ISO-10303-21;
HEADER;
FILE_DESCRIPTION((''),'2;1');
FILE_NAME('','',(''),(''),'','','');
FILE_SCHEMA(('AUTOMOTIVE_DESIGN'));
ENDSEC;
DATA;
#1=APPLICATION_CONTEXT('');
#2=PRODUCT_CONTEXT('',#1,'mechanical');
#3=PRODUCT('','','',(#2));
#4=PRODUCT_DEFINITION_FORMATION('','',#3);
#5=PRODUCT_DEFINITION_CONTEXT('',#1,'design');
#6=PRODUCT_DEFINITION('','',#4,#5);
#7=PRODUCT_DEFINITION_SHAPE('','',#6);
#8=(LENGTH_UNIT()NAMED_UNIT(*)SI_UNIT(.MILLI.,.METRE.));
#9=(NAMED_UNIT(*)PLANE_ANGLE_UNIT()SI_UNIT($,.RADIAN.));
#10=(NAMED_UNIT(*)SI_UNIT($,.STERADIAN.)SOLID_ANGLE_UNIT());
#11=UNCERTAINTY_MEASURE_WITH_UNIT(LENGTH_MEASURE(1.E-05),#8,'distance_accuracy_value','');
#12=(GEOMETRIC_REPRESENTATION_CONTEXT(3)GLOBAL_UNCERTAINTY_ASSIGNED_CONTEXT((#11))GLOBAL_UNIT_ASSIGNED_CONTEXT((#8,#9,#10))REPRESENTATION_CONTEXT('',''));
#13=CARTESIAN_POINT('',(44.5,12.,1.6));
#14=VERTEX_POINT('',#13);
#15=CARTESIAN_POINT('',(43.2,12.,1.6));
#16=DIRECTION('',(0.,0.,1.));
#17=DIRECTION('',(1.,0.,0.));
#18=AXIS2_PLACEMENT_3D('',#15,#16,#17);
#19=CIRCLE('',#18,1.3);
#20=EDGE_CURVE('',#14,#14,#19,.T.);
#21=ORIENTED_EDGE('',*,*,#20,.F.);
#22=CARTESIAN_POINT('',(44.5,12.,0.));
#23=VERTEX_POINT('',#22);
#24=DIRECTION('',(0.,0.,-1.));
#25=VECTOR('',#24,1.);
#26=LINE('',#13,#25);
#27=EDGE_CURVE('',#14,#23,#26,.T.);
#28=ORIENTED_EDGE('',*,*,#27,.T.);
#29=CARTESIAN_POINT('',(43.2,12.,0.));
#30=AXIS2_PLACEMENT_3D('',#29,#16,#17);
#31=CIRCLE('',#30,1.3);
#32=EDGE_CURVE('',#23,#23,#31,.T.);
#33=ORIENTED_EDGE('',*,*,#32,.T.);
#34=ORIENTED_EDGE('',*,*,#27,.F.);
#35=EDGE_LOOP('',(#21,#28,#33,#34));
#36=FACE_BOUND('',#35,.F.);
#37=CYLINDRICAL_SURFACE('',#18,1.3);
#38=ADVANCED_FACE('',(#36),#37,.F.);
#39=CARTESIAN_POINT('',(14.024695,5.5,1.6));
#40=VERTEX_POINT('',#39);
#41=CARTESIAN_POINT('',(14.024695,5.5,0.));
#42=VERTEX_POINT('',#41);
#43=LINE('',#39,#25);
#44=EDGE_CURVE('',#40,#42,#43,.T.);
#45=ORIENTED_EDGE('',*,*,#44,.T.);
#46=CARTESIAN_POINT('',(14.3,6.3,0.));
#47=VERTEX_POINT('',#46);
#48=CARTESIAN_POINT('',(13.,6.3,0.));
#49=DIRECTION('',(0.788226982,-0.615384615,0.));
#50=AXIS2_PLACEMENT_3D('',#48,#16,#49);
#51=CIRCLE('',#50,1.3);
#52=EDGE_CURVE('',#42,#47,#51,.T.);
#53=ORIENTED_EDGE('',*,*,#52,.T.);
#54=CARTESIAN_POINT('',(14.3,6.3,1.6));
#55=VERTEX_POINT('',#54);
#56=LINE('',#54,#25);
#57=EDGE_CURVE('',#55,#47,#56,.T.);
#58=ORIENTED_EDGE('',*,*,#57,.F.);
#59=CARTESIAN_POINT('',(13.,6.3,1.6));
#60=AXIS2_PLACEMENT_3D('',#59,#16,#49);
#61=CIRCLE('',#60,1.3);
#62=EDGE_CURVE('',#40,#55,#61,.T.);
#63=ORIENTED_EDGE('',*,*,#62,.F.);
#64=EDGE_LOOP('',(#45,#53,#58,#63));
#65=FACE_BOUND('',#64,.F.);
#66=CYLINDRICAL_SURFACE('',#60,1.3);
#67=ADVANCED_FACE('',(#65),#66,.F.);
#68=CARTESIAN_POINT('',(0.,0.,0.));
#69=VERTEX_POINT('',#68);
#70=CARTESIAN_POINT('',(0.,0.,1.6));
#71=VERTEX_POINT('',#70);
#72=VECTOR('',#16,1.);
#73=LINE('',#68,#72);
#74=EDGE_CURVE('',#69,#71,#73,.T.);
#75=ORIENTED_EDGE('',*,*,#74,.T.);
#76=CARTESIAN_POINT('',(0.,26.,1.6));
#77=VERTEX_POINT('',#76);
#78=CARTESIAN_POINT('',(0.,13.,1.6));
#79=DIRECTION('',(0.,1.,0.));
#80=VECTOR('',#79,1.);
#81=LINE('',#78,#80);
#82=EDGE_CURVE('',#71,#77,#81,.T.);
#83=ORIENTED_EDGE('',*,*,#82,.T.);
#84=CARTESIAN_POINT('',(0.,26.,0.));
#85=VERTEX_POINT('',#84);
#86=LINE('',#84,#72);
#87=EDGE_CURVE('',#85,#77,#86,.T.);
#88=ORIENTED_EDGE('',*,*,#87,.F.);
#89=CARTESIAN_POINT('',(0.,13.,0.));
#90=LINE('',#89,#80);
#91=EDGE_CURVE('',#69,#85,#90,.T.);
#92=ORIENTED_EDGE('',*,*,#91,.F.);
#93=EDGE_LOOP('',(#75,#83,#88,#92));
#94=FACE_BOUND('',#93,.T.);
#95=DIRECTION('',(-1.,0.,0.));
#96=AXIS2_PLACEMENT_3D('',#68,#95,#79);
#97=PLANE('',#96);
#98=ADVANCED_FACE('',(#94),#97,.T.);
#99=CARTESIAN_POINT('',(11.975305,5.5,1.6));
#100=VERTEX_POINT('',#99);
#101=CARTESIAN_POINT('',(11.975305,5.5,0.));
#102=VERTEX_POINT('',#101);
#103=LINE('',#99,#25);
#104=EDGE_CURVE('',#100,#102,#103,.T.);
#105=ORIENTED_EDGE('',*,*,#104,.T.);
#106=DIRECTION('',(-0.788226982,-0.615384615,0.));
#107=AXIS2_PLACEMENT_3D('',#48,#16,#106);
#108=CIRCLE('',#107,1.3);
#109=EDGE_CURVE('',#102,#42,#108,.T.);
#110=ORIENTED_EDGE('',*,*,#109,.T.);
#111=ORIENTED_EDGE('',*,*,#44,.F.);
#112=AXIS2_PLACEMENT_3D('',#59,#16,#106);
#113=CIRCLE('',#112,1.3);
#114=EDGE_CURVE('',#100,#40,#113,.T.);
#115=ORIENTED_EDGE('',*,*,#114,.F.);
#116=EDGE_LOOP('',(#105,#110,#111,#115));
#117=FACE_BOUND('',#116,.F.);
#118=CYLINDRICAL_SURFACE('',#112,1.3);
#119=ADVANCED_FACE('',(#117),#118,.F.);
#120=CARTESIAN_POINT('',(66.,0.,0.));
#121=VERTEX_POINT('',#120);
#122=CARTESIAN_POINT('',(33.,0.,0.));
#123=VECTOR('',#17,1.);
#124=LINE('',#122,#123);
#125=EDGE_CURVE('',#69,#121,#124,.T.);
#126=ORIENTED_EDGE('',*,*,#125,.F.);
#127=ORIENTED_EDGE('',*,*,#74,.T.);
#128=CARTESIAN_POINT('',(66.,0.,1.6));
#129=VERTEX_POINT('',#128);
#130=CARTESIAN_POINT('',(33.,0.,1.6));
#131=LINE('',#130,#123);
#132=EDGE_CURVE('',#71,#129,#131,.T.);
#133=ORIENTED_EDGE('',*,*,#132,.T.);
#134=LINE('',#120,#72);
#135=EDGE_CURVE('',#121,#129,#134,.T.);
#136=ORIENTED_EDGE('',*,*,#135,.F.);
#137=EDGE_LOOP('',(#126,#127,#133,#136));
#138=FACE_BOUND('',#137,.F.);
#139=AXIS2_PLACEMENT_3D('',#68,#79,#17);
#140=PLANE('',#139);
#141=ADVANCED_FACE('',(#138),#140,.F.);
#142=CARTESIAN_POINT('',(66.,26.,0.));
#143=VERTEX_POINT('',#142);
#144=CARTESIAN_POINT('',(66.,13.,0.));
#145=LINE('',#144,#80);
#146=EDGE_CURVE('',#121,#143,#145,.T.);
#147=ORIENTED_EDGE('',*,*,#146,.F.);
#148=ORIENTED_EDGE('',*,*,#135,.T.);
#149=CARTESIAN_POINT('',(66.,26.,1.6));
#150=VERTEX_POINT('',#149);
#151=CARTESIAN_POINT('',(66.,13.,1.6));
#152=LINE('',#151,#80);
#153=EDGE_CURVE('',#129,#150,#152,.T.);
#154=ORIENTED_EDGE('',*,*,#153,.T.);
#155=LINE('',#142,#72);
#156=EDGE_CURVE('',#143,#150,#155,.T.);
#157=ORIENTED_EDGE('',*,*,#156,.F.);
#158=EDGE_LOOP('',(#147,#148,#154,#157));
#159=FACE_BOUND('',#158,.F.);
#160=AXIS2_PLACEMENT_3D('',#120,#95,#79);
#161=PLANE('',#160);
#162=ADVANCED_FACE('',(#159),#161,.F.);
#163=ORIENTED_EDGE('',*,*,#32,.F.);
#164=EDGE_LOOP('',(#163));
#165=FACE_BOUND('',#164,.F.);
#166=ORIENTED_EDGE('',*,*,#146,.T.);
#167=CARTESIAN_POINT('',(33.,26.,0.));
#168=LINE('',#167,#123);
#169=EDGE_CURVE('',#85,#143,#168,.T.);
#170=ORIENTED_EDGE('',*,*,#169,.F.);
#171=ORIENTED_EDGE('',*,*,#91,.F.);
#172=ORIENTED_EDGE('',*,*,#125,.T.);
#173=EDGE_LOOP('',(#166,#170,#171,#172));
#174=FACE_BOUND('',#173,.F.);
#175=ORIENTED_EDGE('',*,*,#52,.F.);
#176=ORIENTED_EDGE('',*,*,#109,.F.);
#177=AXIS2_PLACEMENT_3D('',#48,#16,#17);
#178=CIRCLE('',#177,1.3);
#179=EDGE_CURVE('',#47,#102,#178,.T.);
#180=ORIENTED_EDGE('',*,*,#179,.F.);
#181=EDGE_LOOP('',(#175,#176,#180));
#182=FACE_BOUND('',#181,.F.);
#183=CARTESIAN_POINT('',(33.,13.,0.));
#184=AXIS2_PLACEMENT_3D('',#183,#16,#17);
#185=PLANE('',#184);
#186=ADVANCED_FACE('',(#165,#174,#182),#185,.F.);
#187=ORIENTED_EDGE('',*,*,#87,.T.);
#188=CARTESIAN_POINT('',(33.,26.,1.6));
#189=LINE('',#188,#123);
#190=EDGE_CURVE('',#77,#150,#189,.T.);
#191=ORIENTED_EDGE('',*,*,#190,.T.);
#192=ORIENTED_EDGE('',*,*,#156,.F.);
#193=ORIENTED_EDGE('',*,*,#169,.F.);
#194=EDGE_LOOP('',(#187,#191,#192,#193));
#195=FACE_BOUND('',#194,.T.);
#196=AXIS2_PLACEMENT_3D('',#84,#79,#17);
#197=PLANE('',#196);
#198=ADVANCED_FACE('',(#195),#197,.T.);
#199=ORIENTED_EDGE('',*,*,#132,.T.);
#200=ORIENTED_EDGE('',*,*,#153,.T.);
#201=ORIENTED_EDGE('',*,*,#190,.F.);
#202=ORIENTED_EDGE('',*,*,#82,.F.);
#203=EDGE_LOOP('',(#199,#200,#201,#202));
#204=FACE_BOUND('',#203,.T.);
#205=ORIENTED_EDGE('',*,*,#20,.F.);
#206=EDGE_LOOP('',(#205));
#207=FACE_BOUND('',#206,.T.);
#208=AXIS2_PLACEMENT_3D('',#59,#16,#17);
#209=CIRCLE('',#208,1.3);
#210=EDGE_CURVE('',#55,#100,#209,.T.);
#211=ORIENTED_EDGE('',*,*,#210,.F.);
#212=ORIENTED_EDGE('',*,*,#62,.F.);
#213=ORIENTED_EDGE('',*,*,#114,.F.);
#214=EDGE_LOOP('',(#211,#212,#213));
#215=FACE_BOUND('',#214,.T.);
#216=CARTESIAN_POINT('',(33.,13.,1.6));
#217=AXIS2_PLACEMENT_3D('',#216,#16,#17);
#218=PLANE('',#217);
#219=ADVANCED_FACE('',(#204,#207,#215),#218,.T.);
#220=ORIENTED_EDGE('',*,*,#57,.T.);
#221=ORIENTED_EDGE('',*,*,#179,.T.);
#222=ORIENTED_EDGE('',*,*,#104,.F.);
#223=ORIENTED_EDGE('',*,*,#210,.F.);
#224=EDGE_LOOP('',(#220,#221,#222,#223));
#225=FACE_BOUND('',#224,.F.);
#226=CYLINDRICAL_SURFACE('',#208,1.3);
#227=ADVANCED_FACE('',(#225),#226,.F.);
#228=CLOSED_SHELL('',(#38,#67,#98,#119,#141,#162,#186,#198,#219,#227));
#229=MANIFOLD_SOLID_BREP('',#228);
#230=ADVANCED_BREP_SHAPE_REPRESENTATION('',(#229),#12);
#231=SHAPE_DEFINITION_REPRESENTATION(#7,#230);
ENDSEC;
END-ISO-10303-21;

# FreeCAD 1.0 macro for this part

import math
import FreeCAD as App
import Part
import Sketcher

V = App.Vector
Q = App.Units.Quantity


def add_polygon(sketch, points):
    """Adds a closed chain of lines whose ends are joined by coincident constraints."""
    first, n = sketch.GeometryCount, len(points)
    for a, b in zip(points, points[1:] + points[:1]):
        sketch.addGeometry(Part.LineSegment(App.Vector(*a, 0), App.Vector(*b, 0)), False)
    for i in range(n):
        sketch.addConstraint(Sketcher.Constraint("Coincident", first + i, 2, first + (i + 1) % n, 1))

doc = App.newDocument("Part")
body = doc.addObject("PartDesign::Body", "Body")

sketch1 = doc.addObject("Sketcher::SketchObject", "Sketch")
body.addObject(sketch1)
sketch1.AttachmentSupport = (doc.XY_Plane, [""])
sketch1.MapMode = "FlatFace"
add_polygon(sketch1, [(0, 26), (0, 0), (66, 0), (66, 26)])
sketch1.addConstraint(Sketcher.Constraint("Vertical", 0))
sketch1.addConstraint(Sketcher.Constraint("Horizontal", 1))
sketch1.addConstraint(Sketcher.Constraint("Vertical", 2))
sketch1.addConstraint(Sketcher.Constraint("Horizontal", 3))
sketch1.addConstraint(Sketcher.Constraint("Coincident", 0, 2, -1, 1))
sketch1.addConstraint(Sketcher.Constraint("DistanceX", 1, 1, 1, 2, Q("66 mm")))
sketch1.addConstraint(Sketcher.Constraint("DistanceY", 0, 2, 0, 1, Q("26 mm")))
pad1 = doc.addObject("PartDesign::Pad", "Pad")
body.addObject(pad1)
pad1.Profile = sketch1
pad1.Length = 1.6

sketch2 = doc.addObject("Sketcher::SketchObject", "Sketch001")
body.addObject(sketch2)
sketch2.AttachmentSupport = (doc.XY_Plane, [""])
sketch2.MapMode = "FlatFace"
sketch2.AttachmentOffset = App.Placement(V(0, 0, 1.6), App.Rotation())
sketch2.addGeometry(Part.ArcOfCircle(Part.Circle(V(13, 6.3, 0), V(0, 0, 1), 1.3), math.radians(-142), math.radians(-38)), False)
sketch2.addGeometry(Part.ArcOfCircle(Part.Circle(V(13, 6.3, 0), V(0, 0, 1), 1.3), math.radians(-38), math.radians(0)), False)
sketch2.addGeometry(Part.ArcOfCircle(Part.Circle(V(13, 6.3, 0), V(0, 0, 1), 1.3), math.radians(0), math.radians(218)), False)
sketch2.addGeometry(Part.Circle(V(43.2, 12, 0), V(0, 0, 1), 1.3), False)
sketch2.addConstraint(Sketcher.Constraint("Tangent", 0, 2, 1, 1))
sketch2.addConstraint(Sketcher.Constraint("Tangent", 1, 2, 2, 1))
sketch2.addConstraint(Sketcher.Constraint("Tangent", 2, 2, 0, 1))
sketch2.addConstraint(Sketcher.Constraint("Equal", 2, 3))
sketch2.addConstraint(Sketcher.Constraint("Horizontal", 2, 3, 1, 2))
sketch2.addConstraint(Sketcher.Constraint("Horizontal", 0, 2, 2, 2))
sketch2.addConstraint(Sketcher.Constraint("Diameter", 3, Q("2.6 mm")))
sketch2.addConstraint(Sketcher.Constraint("DistanceX", -1, 1, 0, 3, Q("13 mm")))
sketch2.addConstraint(Sketcher.Constraint("DistanceY", -1, 1, 3, 3, Q("12 mm")))
sketch2.addConstraint(Sketcher.Constraint("DistanceY", -1, 1, 0, 3, Q("6.3 mm")))
sketch2.addConstraint(Sketcher.Constraint("DistanceX", -1, 1, 3, 3, Q("43.2 mm")))
sketch2.addConstraint(Sketcher.Constraint("DistanceY", -1, 1, 0, 2, Q("5.5 mm")))
pocket1 = doc.addObject("PartDesign::Pocket", "Pocket")
body.addObject(pocket1)
pocket1.Profile = sketch2
pocket1.Type = "ThroughAll"

doc.recompute()
